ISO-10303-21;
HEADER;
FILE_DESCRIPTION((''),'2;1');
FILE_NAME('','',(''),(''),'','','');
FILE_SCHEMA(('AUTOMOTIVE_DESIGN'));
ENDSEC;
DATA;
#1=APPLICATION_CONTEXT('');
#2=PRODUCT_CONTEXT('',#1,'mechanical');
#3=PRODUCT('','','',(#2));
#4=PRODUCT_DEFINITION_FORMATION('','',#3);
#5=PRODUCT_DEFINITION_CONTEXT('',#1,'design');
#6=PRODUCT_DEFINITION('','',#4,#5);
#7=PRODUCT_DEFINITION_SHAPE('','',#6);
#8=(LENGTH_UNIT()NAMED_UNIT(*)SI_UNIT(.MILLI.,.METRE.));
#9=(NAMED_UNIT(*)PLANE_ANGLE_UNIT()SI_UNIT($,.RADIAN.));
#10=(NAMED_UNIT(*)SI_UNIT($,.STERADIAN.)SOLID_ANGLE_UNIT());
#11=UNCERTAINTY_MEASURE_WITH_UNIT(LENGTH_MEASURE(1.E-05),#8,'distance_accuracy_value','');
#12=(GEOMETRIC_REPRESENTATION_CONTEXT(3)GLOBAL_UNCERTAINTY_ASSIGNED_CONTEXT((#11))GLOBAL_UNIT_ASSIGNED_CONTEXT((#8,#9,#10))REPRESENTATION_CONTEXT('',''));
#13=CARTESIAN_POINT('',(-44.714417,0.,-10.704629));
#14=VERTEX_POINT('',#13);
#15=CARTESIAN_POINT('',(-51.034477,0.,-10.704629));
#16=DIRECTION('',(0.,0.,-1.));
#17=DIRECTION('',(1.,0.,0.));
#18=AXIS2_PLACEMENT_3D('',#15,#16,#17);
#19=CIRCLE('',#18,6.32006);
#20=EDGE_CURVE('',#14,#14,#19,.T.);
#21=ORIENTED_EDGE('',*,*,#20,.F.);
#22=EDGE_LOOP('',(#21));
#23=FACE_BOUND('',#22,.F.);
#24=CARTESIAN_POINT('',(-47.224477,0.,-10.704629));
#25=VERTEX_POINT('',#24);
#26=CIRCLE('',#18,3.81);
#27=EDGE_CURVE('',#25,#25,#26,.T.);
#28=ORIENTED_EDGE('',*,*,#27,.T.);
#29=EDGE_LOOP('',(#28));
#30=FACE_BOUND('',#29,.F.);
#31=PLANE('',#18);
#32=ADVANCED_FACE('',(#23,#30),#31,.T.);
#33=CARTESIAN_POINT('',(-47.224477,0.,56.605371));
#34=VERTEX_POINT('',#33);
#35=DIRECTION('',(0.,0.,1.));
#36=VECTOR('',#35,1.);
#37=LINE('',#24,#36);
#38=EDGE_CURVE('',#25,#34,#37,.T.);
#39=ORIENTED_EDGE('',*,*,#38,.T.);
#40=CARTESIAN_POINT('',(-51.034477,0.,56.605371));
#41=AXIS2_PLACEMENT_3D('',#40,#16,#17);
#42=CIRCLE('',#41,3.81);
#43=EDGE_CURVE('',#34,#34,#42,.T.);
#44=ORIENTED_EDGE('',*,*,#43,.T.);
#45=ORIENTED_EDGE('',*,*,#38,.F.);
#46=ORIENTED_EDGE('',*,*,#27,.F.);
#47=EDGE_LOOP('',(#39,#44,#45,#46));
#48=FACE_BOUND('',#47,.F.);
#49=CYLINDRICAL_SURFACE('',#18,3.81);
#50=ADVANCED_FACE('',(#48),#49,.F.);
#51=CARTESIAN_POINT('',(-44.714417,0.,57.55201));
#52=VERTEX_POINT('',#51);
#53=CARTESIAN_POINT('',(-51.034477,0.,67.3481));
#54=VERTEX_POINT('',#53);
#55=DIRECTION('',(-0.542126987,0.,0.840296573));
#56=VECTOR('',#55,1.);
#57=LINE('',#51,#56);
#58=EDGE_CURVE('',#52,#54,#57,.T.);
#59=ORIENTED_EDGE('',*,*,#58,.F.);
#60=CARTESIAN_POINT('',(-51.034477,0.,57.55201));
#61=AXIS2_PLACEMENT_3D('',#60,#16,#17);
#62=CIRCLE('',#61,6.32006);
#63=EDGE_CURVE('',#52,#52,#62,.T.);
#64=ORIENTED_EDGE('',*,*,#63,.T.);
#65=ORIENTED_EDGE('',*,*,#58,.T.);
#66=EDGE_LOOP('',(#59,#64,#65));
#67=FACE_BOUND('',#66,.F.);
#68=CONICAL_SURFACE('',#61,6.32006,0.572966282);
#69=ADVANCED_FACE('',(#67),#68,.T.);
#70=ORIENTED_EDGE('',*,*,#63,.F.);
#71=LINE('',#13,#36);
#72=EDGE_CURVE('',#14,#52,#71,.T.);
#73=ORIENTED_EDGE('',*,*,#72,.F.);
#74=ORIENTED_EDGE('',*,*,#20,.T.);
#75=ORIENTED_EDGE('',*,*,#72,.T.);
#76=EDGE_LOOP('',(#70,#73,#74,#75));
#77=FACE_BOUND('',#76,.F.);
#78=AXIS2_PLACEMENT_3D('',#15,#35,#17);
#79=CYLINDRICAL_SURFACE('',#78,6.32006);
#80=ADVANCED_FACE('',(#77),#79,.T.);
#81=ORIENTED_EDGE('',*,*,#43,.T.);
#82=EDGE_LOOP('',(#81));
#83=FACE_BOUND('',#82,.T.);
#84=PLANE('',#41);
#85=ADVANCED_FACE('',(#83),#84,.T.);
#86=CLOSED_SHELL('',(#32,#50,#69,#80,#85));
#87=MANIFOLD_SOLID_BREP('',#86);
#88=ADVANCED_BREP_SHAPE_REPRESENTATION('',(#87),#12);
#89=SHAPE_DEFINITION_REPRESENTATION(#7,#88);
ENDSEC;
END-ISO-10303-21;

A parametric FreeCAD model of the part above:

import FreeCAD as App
import Part
import Sketcher
from FreeCAD import Vector
Q = App.Units.Quantity

doc = App.newDocument("Part")
body = doc.addObject("PartDesign::Body", "Body")

# Sketch on XZ plane
sketch1 = body.newObject("Sketcher::SketchObject", "Sketch")
sketch1.AttachmentSupport = (doc.getObject("XZ_Plane"), [""])
sketch1.MapMode = "FlatFace"
sketch1.addGeometry(Part.LineSegment(Vector(-45, 58, 0), Vector(-51, 67, 0)), False)
sketch1.addGeometry(Part.LineSegment(Vector(-51, 67, 0), Vector(-51, -11, 0)), False)
sketch1.addGeometry(Part.LineSegment(Vector(-51, -11, 0), Vector(-45, -11, 0)), False)
sketch1.addGeometry(Part.LineSegment(Vector(-45, -11, 0), Vector(-45, 58, 0)), False)
sketch1.addGeometry(Part.LineSegment(Vector(-51, 67, 0), Vector(-51, -11, 0)), True)  # axis
sketch1.addConstraint(Sketcher.Constraint("Coincident", 0, 2, 1, 1))
sketch1.addConstraint(Sketcher.Constraint("Coincident", 1, 2, 2, 1))
sketch1.addConstraint(Sketcher.Constraint("Coincident", 2, 2, 3, 1))
sketch1.addConstraint(Sketcher.Constraint("Coincident", 3, 2, 0, 1))
sketch1.addConstraint(Sketcher.Constraint("Vertical", 1))
sketch1.addConstraint(Sketcher.Constraint("Horizontal", 2))
sketch1.addConstraint(Sketcher.Constraint("Vertical", 3))
sketch1.addConstraint(Sketcher.Constraint("Vertical", 4))
sketch1.addConstraint(Sketcher.Constraint("Coincident", 4, 1, 0, 2))
sketch1.addConstraint(Sketcher.Constraint("Horizontal", 2, 2, 4, 2))
sketch1.addConstraint(Sketcher.Constraint("DistanceY", -1, 1, 0, 2, Q("2.6515 in")))
sketch1.addConstraint(Sketcher.Constraint("DistanceX", 2, 1, 2, 2, Q("6.32006 mm")))
sketch1.addConstraint(Sketcher.Constraint("DistanceY", 1, 2, 1, 1, Q("78.052729 mm")))
sketch1.addConstraint(Sketcher.Constraint("DistanceY", 3, 1, 3, 2, Q("68.256639 mm")))
sketch1.addConstraint(Sketcher.Constraint("DistanceX", 0, 2, -1, 1, Q("51.034477 mm")))
revolution = body.newObject("PartDesign::Revolution", "Revolution")
revolution.Profile = sketch1
revolution.ReferenceAxis = (sketch1, ["Axis0"])
revolution.Angle = 360

# Sketch on XY plane
sketch2 = body.newObject("Sketcher::SketchObject", "Sketch001")
sketch2.AttachmentSupport = (doc.getObject("XY_Plane"), [""])
sketch2.MapMode = "FlatFace"
sketch2.AttachmentOffset = App.Placement(Vector(0, 0, -10.704629), App.Rotation())
sketch2.addGeometry(Part.Circle(Vector(-51, 0, 0), Vector(0, 0, 1), 3.8), False)
sketch2.addConstraint(Sketcher.Constraint("PointOnObject", 0, 3, -1))
sketch2.addConstraint(Sketcher.Constraint("Diameter", 0, Q("0.3 in")))
sketch2.addConstraint(Sketcher.Constraint("DistanceX", 0, 3, -1, 1, Q("51.034477 mm")))
pocket1 = body.newObject("PartDesign::Pocket", "Pocket")
pocket1.Profile = sketch2
pocket1.Length = Q("2.65 in")
pocket1.Reversed = True

doc.recompute()
